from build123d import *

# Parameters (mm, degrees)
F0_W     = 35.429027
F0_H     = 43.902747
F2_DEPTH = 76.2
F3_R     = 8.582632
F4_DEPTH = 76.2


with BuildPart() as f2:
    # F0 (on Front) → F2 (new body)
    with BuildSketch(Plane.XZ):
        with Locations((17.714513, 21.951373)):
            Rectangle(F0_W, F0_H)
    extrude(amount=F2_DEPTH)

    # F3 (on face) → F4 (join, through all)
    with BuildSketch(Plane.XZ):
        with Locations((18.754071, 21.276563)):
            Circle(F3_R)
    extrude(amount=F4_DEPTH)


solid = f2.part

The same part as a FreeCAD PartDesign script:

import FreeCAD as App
import Part
import Sketcher
from FreeCAD import Vector
Q = App.Units.Quantity

doc = App.newDocument("Part")
body = doc.addObject("PartDesign::Body", "Body")

# Sketch on XZ plane
sketch1 = body.newObject("Sketcher::SketchObject", "Sketch")
sketch1.AttachmentSupport = (doc.getObject("XZ_Plane"), [""])
sketch1.MapMode = "FlatFace"
sketch1.addGeometry(Part.LineSegment(Vector(0, 44, 0), Vector(0, 0, 0)), False)
sketch1.addGeometry(Part.LineSegment(Vector(0, 0, 0), Vector(35, 0, 0)), False)
sketch1.addGeometry(Part.LineSegment(Vector(35, 0, 0), Vector(35, 44, 0)), False)
sketch1.addGeometry(Part.LineSegment(Vector(35, 44, 0), Vector(0, 44, 0)), False)
sketch1.addConstraint(Sketcher.Constraint("Coincident", 0, 2, 1, 1))
sketch1.addConstraint(Sketcher.Constraint("Coincident", 1, 2, 2, 1))
sketch1.addConstraint(Sketcher.Constraint("Coincident", 2, 2, 3, 1))
sketch1.addConstraint(Sketcher.Constraint("Coincident", 3, 2, 0, 1))
sketch1.addConstraint(Sketcher.Constraint("Vertical", 0))
sketch1.addConstraint(Sketcher.Constraint("Horizontal", 1))
sketch1.addConstraint(Sketcher.Constraint("Vertical", 2))
sketch1.addConstraint(Sketcher.Constraint("Horizontal", 3))
sketch1.addConstraint(Sketcher.Constraint("Coincident", 0, 2, -1, 1))
sketch1.addConstraint(Sketcher.Constraint("DistanceX", 1, 1, 1, 2, Q("35.429027 mm")))
sketch1.addConstraint(Sketcher.Constraint("DistanceY", 0, 2, 0, 1, Q("43.902747 mm")))
pad1 = body.newObject("PartDesign::Pad", "Pad")
pad1.Profile = sketch1
pad1.Length = Q("3 in")

# Sketch on XZ plane
sketch2 = body.newObject("Sketcher::SketchObject", "Sketch001")
sketch2.AttachmentSupport = (doc.getObject("XZ_Plane"), [""])
sketch2.MapMode = "FlatFace"
sketch2.addGeometry(Part.Circle(Vector(19, 21, 0), Vector(0, 0, 1), 9), False)
sketch2.addConstraint(Sketcher.Constraint("Diameter", 0, Q("17.165264 mm")))
sketch2.addConstraint(Sketcher.Constraint("DistanceX", -1, 1, 0, 3, Q("18.754071 mm")))
sketch2.addConstraint(Sketcher.Constraint("DistanceY", -1, 1, 0, 3, Q("21.276563 mm")))
pad2 = body.newObject("PartDesign::Pad", "Pad001")
pad2.Profile = sketch2
pad2.Type = "UpToLast"

doc.recompute()
